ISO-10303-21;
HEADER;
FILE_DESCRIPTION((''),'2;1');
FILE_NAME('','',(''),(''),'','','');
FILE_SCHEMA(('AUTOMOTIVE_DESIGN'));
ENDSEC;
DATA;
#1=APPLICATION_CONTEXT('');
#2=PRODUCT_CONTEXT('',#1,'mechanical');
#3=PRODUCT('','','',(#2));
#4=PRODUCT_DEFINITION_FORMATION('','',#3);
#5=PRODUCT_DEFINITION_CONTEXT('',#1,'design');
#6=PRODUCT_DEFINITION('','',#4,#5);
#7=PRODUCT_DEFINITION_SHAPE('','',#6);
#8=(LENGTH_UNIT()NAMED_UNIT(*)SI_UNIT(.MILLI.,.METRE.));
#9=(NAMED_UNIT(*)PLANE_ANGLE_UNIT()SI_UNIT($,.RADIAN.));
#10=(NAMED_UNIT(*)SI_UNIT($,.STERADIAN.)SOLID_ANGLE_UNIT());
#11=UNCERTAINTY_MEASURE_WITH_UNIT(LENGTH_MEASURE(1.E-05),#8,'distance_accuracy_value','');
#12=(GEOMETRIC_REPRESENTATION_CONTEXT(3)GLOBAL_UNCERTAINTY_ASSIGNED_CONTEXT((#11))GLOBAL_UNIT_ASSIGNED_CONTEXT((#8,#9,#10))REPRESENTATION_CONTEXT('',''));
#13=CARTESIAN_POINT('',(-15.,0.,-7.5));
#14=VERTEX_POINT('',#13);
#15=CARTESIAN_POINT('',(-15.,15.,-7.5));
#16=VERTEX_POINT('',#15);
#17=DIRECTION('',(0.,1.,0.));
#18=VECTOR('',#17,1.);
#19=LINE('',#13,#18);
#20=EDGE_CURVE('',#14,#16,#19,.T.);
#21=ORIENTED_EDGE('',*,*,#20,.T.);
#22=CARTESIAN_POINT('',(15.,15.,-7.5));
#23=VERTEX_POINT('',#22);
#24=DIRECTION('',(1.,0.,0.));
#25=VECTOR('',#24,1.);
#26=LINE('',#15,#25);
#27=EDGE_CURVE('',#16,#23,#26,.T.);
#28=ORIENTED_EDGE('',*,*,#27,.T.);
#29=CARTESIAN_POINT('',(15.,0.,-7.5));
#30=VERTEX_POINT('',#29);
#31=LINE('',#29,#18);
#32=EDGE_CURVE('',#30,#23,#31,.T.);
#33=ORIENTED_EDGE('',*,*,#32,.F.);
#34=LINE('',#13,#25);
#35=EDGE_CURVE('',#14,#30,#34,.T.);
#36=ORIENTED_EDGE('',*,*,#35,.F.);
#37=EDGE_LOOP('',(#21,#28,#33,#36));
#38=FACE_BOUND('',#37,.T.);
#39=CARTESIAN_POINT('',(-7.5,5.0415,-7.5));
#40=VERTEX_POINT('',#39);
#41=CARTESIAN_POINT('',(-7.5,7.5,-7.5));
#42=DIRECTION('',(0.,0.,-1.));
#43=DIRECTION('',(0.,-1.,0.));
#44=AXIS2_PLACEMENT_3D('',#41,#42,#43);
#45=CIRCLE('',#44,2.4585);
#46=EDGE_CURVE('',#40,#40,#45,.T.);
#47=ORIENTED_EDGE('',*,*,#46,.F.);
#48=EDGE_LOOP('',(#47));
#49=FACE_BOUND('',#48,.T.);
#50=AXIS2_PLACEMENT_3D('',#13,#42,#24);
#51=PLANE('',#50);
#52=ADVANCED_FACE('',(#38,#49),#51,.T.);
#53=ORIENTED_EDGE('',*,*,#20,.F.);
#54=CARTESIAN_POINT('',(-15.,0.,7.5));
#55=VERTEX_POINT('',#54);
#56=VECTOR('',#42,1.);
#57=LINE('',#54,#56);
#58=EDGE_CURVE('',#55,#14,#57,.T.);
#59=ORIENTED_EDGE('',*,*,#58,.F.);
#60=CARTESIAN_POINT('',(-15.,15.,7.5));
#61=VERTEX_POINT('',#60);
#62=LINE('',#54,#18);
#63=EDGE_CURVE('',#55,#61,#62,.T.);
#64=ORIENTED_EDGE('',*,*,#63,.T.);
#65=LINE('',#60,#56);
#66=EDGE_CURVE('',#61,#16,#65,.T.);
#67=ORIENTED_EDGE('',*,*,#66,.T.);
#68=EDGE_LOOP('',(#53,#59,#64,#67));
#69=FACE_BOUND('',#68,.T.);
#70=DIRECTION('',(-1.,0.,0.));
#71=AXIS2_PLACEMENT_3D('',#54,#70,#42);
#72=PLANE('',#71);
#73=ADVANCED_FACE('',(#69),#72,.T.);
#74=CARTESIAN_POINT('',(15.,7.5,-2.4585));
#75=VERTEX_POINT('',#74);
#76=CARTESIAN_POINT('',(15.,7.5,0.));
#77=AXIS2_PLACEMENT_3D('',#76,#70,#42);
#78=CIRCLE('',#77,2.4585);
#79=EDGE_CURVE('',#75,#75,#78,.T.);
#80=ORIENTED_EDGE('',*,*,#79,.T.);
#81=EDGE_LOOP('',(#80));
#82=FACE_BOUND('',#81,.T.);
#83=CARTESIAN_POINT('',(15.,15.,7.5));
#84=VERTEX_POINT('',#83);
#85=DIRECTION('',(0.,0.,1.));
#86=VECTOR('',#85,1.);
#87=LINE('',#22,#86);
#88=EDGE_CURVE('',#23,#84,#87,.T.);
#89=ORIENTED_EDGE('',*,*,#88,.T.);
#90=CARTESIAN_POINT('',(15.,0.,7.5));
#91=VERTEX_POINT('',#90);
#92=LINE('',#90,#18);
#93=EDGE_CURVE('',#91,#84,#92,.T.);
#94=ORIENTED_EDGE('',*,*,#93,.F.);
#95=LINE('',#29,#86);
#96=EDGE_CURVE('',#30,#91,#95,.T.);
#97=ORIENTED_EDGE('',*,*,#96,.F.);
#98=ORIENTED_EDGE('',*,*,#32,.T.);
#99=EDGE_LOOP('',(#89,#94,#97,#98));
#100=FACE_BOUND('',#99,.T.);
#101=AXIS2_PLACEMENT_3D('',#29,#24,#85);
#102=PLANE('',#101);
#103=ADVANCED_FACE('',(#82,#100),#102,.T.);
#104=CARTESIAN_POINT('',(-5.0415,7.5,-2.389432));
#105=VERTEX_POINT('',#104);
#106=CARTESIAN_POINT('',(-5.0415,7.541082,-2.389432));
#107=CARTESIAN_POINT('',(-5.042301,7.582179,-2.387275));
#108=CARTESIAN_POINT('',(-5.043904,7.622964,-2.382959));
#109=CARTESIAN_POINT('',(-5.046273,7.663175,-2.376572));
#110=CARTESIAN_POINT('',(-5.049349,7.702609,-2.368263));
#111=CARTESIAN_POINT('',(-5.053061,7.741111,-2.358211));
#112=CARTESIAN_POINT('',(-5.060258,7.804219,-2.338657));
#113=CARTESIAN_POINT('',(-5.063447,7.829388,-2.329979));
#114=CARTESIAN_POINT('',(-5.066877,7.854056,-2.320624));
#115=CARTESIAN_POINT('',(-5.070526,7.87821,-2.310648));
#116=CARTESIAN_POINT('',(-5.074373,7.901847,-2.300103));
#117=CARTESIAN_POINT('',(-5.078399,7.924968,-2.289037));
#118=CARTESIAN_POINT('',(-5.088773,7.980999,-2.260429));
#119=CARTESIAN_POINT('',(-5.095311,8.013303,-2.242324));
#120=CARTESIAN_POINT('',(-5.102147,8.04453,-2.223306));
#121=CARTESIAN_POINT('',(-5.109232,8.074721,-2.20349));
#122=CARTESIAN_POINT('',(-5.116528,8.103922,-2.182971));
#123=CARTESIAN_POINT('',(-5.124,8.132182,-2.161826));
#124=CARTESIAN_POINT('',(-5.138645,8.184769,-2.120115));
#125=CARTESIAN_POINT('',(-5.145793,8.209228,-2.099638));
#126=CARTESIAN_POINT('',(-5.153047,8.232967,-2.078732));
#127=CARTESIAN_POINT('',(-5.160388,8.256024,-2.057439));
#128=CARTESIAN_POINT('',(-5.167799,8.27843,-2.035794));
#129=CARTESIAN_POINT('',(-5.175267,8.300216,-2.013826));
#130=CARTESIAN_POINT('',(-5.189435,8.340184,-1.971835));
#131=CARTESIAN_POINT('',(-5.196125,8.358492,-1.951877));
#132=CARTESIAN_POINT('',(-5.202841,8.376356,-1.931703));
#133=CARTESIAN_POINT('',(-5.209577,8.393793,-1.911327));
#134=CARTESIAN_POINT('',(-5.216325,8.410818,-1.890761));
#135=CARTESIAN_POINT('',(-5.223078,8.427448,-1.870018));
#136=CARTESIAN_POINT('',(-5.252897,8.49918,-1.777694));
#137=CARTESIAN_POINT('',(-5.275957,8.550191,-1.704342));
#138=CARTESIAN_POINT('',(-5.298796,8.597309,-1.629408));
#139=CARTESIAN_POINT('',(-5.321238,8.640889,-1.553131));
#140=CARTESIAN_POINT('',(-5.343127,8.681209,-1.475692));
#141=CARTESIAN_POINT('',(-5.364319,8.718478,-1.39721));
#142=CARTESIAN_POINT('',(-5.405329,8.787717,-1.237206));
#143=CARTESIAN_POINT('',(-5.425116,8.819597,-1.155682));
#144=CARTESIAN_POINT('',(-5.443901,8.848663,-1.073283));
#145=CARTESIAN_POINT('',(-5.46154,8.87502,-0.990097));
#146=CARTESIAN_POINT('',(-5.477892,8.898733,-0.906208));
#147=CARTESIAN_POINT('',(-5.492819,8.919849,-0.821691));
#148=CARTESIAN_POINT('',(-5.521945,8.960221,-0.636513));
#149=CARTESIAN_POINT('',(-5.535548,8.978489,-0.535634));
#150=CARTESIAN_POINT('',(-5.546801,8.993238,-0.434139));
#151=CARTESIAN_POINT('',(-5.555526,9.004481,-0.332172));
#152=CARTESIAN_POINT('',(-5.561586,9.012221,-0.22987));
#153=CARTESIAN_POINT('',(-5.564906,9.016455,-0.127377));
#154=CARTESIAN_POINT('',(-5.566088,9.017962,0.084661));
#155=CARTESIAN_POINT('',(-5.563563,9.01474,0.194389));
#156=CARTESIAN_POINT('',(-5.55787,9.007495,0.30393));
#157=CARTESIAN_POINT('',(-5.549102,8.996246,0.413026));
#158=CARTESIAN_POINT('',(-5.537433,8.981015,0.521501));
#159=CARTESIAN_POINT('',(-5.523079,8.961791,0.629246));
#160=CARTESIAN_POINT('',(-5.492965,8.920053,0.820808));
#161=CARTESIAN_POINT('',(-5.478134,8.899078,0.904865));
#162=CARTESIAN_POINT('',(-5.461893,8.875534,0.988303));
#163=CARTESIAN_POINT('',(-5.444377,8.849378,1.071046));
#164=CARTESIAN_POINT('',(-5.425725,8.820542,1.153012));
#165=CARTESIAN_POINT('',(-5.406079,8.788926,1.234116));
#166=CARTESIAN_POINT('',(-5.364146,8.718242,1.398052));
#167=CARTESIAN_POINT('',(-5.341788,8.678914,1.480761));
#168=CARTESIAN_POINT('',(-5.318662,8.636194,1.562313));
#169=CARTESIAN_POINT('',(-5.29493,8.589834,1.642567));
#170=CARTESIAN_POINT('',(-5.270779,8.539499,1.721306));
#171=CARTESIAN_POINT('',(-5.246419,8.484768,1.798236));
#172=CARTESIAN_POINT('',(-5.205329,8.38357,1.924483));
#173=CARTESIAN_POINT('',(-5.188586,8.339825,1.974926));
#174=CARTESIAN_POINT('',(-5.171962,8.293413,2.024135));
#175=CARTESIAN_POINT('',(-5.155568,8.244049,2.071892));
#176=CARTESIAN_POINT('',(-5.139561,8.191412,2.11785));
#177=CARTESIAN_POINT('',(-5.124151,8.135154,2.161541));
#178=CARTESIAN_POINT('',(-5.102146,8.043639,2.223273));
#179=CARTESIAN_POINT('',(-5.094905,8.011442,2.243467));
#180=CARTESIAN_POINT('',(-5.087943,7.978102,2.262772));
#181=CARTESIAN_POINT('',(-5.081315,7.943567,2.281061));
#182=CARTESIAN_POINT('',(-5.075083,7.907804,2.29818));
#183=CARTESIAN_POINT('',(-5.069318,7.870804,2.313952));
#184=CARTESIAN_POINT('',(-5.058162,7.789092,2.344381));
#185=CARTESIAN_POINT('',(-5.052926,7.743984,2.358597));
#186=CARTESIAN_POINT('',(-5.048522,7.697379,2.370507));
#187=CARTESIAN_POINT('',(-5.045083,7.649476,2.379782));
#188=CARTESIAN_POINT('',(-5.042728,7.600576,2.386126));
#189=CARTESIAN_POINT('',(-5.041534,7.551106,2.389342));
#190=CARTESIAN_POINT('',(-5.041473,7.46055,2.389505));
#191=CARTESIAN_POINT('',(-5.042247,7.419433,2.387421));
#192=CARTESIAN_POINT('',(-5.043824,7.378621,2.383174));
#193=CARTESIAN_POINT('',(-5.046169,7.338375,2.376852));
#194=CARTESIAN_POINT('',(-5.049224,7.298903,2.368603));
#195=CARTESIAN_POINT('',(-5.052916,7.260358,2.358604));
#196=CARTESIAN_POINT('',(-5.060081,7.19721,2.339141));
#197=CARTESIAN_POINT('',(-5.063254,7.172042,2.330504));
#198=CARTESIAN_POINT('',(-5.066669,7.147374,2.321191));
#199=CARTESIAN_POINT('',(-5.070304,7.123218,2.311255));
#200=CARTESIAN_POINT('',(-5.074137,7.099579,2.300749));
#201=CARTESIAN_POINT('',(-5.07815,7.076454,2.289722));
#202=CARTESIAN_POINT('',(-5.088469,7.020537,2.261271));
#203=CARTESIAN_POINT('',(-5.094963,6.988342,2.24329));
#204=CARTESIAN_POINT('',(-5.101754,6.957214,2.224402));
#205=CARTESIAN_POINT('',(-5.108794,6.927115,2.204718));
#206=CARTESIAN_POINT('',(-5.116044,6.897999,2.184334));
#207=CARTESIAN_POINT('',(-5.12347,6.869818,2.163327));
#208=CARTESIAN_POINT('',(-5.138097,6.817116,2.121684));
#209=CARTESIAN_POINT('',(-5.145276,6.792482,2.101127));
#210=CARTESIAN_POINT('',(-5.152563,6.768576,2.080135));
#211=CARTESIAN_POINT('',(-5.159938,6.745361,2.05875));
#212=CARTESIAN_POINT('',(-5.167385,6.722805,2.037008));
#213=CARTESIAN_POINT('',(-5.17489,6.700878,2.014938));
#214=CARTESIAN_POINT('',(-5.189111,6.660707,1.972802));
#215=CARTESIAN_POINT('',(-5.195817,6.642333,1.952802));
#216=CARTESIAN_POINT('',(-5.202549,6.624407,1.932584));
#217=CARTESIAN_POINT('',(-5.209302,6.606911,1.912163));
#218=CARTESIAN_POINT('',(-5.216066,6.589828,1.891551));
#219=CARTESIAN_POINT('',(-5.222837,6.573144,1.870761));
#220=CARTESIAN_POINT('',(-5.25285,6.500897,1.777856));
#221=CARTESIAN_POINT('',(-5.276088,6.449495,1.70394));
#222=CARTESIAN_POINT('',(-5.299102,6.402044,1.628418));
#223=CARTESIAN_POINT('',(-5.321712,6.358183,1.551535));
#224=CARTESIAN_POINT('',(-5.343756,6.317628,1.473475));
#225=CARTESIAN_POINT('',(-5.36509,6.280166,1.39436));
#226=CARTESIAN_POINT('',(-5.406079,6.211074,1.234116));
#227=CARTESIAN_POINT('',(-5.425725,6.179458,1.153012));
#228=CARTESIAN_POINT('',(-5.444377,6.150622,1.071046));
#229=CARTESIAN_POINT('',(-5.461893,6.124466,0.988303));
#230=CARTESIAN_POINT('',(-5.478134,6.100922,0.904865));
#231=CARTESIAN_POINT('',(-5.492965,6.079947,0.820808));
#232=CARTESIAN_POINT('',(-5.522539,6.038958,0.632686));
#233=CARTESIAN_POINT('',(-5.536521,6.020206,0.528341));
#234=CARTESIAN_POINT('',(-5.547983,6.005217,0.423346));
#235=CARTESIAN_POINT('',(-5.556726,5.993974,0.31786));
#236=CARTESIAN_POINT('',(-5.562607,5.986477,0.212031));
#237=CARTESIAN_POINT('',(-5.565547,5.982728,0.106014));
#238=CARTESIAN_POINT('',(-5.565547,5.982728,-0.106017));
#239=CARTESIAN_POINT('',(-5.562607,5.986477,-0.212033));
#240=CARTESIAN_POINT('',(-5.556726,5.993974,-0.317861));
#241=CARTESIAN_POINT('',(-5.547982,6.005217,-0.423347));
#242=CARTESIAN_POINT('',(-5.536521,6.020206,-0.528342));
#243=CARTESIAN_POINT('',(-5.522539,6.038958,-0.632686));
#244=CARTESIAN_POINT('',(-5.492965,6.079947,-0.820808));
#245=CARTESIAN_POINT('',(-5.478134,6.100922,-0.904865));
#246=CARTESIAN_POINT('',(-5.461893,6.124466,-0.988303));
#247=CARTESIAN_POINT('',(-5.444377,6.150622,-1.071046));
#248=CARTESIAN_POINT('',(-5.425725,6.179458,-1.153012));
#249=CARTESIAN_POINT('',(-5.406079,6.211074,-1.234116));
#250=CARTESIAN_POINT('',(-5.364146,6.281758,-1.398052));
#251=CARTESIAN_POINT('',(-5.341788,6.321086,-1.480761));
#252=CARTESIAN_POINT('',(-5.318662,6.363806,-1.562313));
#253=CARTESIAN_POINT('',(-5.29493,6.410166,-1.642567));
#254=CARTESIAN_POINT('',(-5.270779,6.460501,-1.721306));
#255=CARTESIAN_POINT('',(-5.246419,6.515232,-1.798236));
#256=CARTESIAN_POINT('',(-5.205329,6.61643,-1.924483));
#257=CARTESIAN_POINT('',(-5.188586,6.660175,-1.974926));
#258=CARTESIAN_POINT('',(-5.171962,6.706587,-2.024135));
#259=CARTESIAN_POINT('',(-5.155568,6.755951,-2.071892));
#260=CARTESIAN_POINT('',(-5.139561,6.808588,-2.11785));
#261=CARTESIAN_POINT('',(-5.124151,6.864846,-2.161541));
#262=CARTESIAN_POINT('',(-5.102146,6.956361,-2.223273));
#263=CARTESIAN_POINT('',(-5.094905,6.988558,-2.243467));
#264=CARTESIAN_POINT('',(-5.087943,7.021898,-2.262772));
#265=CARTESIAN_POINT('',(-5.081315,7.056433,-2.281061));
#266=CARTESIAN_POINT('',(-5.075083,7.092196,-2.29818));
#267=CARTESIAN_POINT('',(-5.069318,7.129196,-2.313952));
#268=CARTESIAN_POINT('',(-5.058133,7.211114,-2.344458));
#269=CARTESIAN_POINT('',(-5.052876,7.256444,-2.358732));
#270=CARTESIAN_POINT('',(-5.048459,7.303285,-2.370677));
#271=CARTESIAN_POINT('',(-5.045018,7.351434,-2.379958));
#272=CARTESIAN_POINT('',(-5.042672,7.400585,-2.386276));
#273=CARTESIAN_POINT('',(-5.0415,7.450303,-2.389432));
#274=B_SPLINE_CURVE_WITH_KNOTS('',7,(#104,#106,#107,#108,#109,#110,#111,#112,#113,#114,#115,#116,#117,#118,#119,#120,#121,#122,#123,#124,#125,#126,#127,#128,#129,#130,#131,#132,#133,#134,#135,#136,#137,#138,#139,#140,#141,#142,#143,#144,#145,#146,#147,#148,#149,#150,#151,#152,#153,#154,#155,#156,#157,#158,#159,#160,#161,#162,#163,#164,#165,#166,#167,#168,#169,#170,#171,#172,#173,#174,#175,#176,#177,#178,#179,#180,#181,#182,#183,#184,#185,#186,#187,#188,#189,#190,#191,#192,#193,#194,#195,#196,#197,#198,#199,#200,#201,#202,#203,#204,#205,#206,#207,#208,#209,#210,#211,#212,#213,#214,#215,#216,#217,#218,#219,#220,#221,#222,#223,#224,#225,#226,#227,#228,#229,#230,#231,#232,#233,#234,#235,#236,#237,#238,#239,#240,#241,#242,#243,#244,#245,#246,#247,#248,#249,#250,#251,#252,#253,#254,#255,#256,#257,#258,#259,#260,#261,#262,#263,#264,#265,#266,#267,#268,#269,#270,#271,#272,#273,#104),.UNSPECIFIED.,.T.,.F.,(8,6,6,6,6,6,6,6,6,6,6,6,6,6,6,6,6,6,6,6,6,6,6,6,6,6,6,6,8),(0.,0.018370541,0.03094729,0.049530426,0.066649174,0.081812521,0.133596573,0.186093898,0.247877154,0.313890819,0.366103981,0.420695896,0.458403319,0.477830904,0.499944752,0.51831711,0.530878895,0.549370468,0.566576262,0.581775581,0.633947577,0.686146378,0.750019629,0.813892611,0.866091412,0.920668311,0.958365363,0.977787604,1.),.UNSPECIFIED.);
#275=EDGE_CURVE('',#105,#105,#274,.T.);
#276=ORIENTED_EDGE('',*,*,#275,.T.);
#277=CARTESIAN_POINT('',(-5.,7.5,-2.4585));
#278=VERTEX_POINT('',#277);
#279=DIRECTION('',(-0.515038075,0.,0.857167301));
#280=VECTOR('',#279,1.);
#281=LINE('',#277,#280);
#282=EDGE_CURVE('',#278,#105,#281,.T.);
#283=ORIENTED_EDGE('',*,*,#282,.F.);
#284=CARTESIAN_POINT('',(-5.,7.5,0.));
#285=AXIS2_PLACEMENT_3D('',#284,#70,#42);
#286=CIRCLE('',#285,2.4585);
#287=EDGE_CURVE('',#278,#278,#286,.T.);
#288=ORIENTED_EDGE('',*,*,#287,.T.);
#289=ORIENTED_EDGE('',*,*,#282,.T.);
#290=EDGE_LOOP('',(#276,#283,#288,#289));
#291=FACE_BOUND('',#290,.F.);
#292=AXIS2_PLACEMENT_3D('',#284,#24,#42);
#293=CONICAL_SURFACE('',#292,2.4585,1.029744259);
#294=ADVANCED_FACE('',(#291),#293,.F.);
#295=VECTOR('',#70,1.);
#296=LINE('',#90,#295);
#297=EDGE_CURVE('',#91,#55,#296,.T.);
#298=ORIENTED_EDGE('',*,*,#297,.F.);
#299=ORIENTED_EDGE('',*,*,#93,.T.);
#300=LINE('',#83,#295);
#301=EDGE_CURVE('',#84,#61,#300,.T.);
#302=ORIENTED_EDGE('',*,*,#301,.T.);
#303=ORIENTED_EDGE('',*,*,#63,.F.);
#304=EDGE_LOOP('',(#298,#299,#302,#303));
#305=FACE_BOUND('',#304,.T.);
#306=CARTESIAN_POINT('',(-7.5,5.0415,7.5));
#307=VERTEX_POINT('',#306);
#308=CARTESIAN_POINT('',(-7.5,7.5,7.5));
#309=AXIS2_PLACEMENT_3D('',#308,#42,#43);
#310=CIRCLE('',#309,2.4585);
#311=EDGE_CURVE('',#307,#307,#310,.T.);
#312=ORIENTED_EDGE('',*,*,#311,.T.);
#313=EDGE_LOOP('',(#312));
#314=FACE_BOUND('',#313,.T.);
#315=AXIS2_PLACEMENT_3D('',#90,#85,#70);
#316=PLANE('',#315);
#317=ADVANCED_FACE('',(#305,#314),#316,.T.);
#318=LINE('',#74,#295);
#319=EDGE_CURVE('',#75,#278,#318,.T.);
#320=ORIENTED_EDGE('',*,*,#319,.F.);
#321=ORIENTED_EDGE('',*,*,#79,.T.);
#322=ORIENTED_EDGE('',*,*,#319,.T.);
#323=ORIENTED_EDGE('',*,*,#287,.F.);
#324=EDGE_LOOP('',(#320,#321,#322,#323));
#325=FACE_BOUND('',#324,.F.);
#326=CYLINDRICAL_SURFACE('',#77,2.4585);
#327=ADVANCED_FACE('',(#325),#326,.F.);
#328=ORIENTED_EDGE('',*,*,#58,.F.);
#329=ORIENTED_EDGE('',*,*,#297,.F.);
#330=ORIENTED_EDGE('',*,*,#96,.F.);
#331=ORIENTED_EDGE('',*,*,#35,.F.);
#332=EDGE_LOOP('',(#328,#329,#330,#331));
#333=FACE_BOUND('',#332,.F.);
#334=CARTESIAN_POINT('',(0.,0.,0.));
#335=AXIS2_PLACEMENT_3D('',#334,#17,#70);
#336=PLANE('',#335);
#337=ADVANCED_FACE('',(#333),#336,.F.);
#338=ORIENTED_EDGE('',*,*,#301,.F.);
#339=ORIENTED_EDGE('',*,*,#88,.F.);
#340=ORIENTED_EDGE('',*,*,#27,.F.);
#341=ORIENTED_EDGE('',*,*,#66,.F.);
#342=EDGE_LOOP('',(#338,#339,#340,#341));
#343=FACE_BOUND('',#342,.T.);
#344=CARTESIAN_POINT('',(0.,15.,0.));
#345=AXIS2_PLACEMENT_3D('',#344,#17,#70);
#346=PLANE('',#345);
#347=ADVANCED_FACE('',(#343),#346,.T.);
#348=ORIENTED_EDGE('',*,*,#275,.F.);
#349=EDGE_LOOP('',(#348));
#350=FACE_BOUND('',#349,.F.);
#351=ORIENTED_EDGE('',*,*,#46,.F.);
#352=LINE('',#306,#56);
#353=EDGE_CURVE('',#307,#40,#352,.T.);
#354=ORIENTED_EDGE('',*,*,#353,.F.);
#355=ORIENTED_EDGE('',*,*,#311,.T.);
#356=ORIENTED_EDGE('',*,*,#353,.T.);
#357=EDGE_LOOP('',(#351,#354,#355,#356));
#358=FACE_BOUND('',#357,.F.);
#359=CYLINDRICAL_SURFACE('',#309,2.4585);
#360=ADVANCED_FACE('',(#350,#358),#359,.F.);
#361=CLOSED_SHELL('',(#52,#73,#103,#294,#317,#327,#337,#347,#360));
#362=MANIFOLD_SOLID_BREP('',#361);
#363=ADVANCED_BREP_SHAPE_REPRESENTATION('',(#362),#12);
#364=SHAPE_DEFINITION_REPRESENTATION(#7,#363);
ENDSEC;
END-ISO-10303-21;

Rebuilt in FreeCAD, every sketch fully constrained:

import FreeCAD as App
import Part
import Sketcher
from FreeCAD import Vector

doc = App.newDocument("Part")
body = doc.addObject("PartDesign::Body", "Body")

sketch1 = body.newObject("Sketcher::SketchObject", "Sketch")
sketch1.AttachmentSupport = (doc.getObject("XZ_Plane"), [""])
sketch1.MapMode = "FlatFace"
sketch1.addGeometry(Part.LineSegment(Vector(15, -8, 0), Vector(-15, -8, 0)), False)
sketch1.addGeometry(Part.LineSegment(Vector(-15, -8, 0), Vector(-15, 8, 0)), False)
sketch1.addGeometry(Part.LineSegment(Vector(-15, 8, 0), Vector(15, 8, 0)), False)
sketch1.addGeometry(Part.LineSegment(Vector(15, 8, 0), Vector(15, -8, 0)), False)
sketch1.addConstraint(Sketcher.Constraint("Coincident", 0, 2, 1, 1))
sketch1.addConstraint(Sketcher.Constraint("Coincident", 1, 2, 2, 1))
sketch1.addConstraint(Sketcher.Constraint("Coincident", 2, 2, 3, 1))
sketch1.addConstraint(Sketcher.Constraint("Coincident", 3, 2, 0, 1))
sketch1.addConstraint(Sketcher.Constraint("Horizontal", 0))
sketch1.addConstraint(Sketcher.Constraint("Vertical", 1))
sketch1.addConstraint(Sketcher.Constraint("Horizontal", 2))
sketch1.addConstraint(Sketcher.Constraint("Vertical", 3))
sketch1.addConstraint(Sketcher.Constraint("Symmetric", 0, 2, 2, 2, -1, 1))
sketch1.addConstraint(Sketcher.Constraint("DistanceX", 0, 2, 0, 1, 30.0))
sketch1.addConstraint(Sketcher.Constraint("DistanceY", 1, 1, 1, 2, 15.0))
pad1 = body.newObject("PartDesign::Pad", "Pad")
pad1.Profile = sketch1
pad1.Length = 15
pad1.Reversed = True

sketch2 = body.newObject("Sketcher::SketchObject", "Sketch001")
sketch2.AttachmentSupport = (doc.getObject("YZ_Plane"), [""])
sketch2.MapMode = "FlatFace"
sketch2.AttachmentOffset = App.Placement(Vector(0, 0, 15), App.Rotation())
sketch2.addGeometry(Part.Circle(Vector(7.5, 0, 0), Vector(0, 0, 1), 2.5), False)
sketch2.addConstraint(Sketcher.Constraint("PointOnObject", 0, 3, -1))
sketch2.addConstraint(Sketcher.Constraint("Diameter", 0, 4.917))
sketch2.addConstraint(Sketcher.Constraint("DistanceX", -1, 1, 0, 3, 7.5))
doc.recompute()
hole = body.newObject("PartDesign::Hole", "Hole")
hole.Profile = sketch2
hole.ThreadType = "None"
hole.Diameter = 4.917
hole.DepthType = "Dimension"
hole.Depth = 20
hole.DrillPoint = "Angled"
hole.DrillPointAngle = 118

sketch3 = body.newObject("Sketcher::SketchObject", "Sketch002")
sketch3.AttachmentSupport = (doc.getObject("XY_Plane"), [""])
sketch3.MapMode = "FlatFace"
sketch3.AttachmentOffset = App.Placement(Vector(0, 0, 7.5), App.Rotation())
sketch3.addGeometry(Part.Circle(Vector(-7.5, 7.5, 0), Vector(0, 0, 1), 2.5), False)
sketch3.addConstraint(Sketcher.Constraint("Diameter", 0, 4.917))
sketch3.addConstraint(Sketcher.Constraint("DistanceX", 0, 3, -1, 1, 7.5))
sketch3.addConstraint(Sketcher.Constraint("DistanceY", -1, 1, 0, 3, 7.5))
doc.recompute()
hole2 = body.newObject("PartDesign::Hole", "Hole001")
hole2.Profile = sketch3
hole2.ThreadType = "None"
hole2.Diameter = 4.917
hole2.DepthType = "Dimension"
hole2.Depth = 15
hole2.DrillPoint = "Angled"
hole2.DrillPointAngle = 118

doc.recompute()
